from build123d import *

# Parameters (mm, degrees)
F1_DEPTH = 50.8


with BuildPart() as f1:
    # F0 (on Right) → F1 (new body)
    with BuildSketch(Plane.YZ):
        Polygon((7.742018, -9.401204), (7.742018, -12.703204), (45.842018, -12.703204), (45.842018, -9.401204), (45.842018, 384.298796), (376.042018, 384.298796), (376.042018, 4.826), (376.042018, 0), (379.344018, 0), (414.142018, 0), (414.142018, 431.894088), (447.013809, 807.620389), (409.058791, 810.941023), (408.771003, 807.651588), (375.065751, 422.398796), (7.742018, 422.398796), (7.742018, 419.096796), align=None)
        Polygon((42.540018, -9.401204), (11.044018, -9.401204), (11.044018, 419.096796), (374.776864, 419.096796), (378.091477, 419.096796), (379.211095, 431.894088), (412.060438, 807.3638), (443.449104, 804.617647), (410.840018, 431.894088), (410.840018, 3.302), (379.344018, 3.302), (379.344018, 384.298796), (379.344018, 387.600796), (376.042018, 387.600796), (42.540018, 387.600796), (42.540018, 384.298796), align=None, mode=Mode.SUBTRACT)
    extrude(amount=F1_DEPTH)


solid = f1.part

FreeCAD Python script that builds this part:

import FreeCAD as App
import Part
import Sketcher

V = App.Vector
Q = App.Units.Quantity

doc = App.newDocument("Part")
params = doc.addObject("Spreadsheet::Sheet", "Params")
for row, (alias, value) in enumerate([
    ("sketch1_width", "13 in"),
    ("sketch1_width2", "1.5 in"),
    ("sketch1_length", "1.5 in"),
    ("sketch1_width3", "1.24 in"),
    ("sketch1_width4", "13.26 in"),
    ("pad1_length", "2 in"),
], start=1):
    params.set(f"A{row}", alias)
    params.set(f"B{row}", "=" + value)
    params.setAlias(f"B{row}", alias)

body = doc.addObject("PartDesign::Body", "Body")

# Sketch on YZ plane
sketch1 = body.newObject("Sketcher::SketchObject", "Sketch")
sketch1.AttachmentSupport = (doc.getObject("YZ_Plane"), [""])
sketch1.MapMode = "FlatFace"
sketch1.addGeometry([
    Part.LineSegment(V(7.742018, -12.703204, 0), V(45.842018, -12.703204, 0)),  # 0
    Part.LineSegment(V(45.842018, -12.703204, 0), V(45.842018, 384.298796, 0)),  # 1
    Part.LineSegment(V(45.842018, 384.298796, 0), V(376.042018, 384.298796, 0)),  # 2
    Part.LineSegment(V(376.042018, 384.298796, 0), V(376.042018, 0, 0)),  # 3
    Part.LineSegment(V(376.042018, 0, 0), V(414.142018, 0, 0)),  # 4
    Part.LineSegment(V(414.142018, 0, 0), V(414.142018, 431.894088, 0)),  # 5
    Part.LineSegment(V(414.142018, 431.894088, 0), V(447.013809, 807.620389, 0)),  # 6
    Part.LineSegment(V(447.013809, 807.620389, 0), V(409.058791, 810.941023, 0)),  # 7
    Part.LineSegment(V(409.058791, 810.941023, 0), V(408.771003, 807.651588, 0)),  # 8
    Part.LineSegment(V(408.771003, 807.651588, 0), V(375.065751, 422.398796, 0)),  # 9
    Part.LineSegment(V(375.065751, 422.398796, 0), V(7.742018, 422.398796, 0)),  # 10
    Part.LineSegment(V(7.742018, 422.398796, 0), V(7.742018, -12.703204, 0)),  # 11
    Part.LineSegment(V(42.540018, 387.600796, 0), V(42.540018, -9.401204, 0)),  # 12
    Part.LineSegment(V(42.540018, -9.401204, 0), V(11.044018, -9.401204, 0)),  # 13
    Part.LineSegment(V(11.044018, -9.401204, 0), V(11.044018, 419.096796, 0)),  # 14
    Part.LineSegment(V(11.044018, 419.096796, 0), V(378.091477, 419.096796, 0)),  # 15
    Part.LineSegment(V(378.091477, 419.096796, 0), V(379.211095, 431.894088, 0)),  # 16
    Part.LineSegment(V(379.211095, 431.894088, 0), V(412.060438, 807.3638, 0)),  # 17
    Part.LineSegment(V(412.060438, 807.3638, 0), V(443.449104, 804.617647, 0)),  # 18
    Part.LineSegment(V(443.449104, 804.617647, 0), V(410.840018, 431.894088, 0)),  # 19
    Part.LineSegment(V(410.840018, 431.894088, 0), V(410.840018, 3.302, 0)),  # 20
    Part.LineSegment(V(410.840018, 3.302, 0), V(379.344018, 3.302, 0)),  # 21
    Part.LineSegment(V(379.344018, 3.302, 0), V(379.344018, 387.600796, 0)),  # 22
    Part.LineSegment(V(379.344018, 387.600796, 0), V(42.540018, 387.600796, 0)),  # 23
], False)
sketch1.addConstraint([
    Sketcher.Constraint("Coincident", 0, 2, 1, 1),
    Sketcher.Constraint("Coincident", 1, 2, 2, 1),
    Sketcher.Constraint("Coincident", 2, 2, 3, 1),
    Sketcher.Constraint("Coincident", 3, 2, 4, 1),
    Sketcher.Constraint("Coincident", 4, 2, 5, 1),
    Sketcher.Constraint("Coincident", 5, 2, 6, 1),
    Sketcher.Constraint("Coincident", 6, 2, 7, 1),
    Sketcher.Constraint("Coincident", 7, 2, 8, 1),
    Sketcher.Constraint("Coincident", 8, 2, 9, 1),
    Sketcher.Constraint("Coincident", 9, 2, 10, 1),
    Sketcher.Constraint("Coincident", 10, 2, 11, 1),
    Sketcher.Constraint("Coincident", 11, 2, 0, 1),
    Sketcher.Constraint("Coincident", 12, 2, 13, 1),
    Sketcher.Constraint("Coincident", 13, 2, 14, 1),
    Sketcher.Constraint("Coincident", 14, 2, 15, 1),
    Sketcher.Constraint("Coincident", 15, 2, 16, 1),
    Sketcher.Constraint("Coincident", 16, 2, 17, 1),
    Sketcher.Constraint("Coincident", 17, 2, 18, 1),
    Sketcher.Constraint("Coincident", 18, 2, 19, 1),
    Sketcher.Constraint("Coincident", 19, 2, 20, 1),
    Sketcher.Constraint("Coincident", 20, 2, 21, 1),
    Sketcher.Constraint("Coincident", 21, 2, 22, 1),
    Sketcher.Constraint("Coincident", 22, 2, 23, 1),
    Sketcher.Constraint("Coincident", 23, 2, 12, 1),
    Sketcher.Constraint("Horizontal", 0),
    Sketcher.Constraint("Vertical", 1),
    Sketcher.Constraint("Horizontal", 2),
    Sketcher.Constraint("Vertical", 3),
    Sketcher.Constraint("Horizontal", 4),
    Sketcher.Constraint("Vertical", 5),
    Sketcher.Constraint("Horizontal", 10),
    Sketcher.Constraint("Vertical", 11),
    Sketcher.Constraint("Vertical", 12),
    Sketcher.Constraint("Horizontal", 13),
    Sketcher.Constraint("Vertical", 14),
    Sketcher.Constraint("Horizontal", 15),
    Sketcher.Constraint("Vertical", 20),
    Sketcher.Constraint("Horizontal", 21),
    Sketcher.Constraint("Vertical", 22),
    Sketcher.Constraint("Horizontal", 23),
    Sketcher.Constraint("PointOnObject", 3, 2, -1),
    Sketcher.Constraint("Perpendicular", 6, 7),
    Sketcher.Constraint("Perpendicular", 7, 8),
    Sketcher.Constraint("Parallel", 8, 9),
    Sketcher.Constraint("Parallel", 9, 16),
    Sketcher.Constraint("Parallel", 16, 17),
    Sketcher.Constraint("Perpendicular", 17, 18),
    Sketcher.Constraint("Perpendicular", 18, 19),
    Sketcher.Constraint("Horizontal", 5, 2, 16, 2),
    Sketcher.Constraint("Horizontal", 16, 2, 19, 2),
    Sketcher.Constraint("Equal", 0, 4),
    Sketcher.Constraint("Equal", 13, 21),
    Sketcher.Constraint("Equal", 1, 12),
    Sketcher.Constraint("Equal", 3, 22),
    Sketcher.Constraint("DistanceX", 2, 1, 2, 2, Q("13 in")),
    Sketcher.Constraint("DistanceX", 0, 1, 0, 2, Q("1.5 in")),
    Sketcher.Constraint("Angle", 6, Q("85 deg")),
    Sketcher.Constraint("Distance", 7, Q("1.5 in")),
    Sketcher.Constraint("DistanceX", 13, 2, 13, 1, Q("1.24 in")),
    Sketcher.Constraint("DistanceX", 23, 2, 23, 1, Q("13.26 in")),
    Sketcher.Constraint("DistanceY", 1, 1, 1, 2, Q("15.63 in")),
    Sketcher.Constraint("DistanceY", 11, 2, 11, 1, Q("17.13 in")),
    Sketcher.Constraint("DistanceY", 14, 1, 14, 2, Q("16.87 in")),
    Sketcher.Constraint("DistanceY", 12, 2, 1, 2, Q("15.5 in")),
    Sketcher.Constraint("Distance", 8, Q("0.13 in")),
    Sketcher.Constraint("DistanceX", 12, 2, 0, 2, Q("0.13 in")),
    Sketcher.Constraint("DistanceX", 15, 1, 15, 2, 367.047459),
    Sketcher.Constraint("DistanceY", 5, 1, 5, 2, 431.894088),
    Sketcher.Constraint("DistanceY", -1, 1, 17, 2, 807.3638),
    Sketcher.Constraint("DistanceY", 5, 2, 6, 2, 375.726301),
    Sketcher.Constraint("DistanceX", 10, 2, 10, 1, 367.323733),
    Sketcher.Constraint("DistanceX", -1, 1, 0, 2, 45.842018),
])
sketch1.setExpression("Constraints[54]", "Params.sketch1_width")
sketch1.setExpression("Constraints[55]", "Params.sketch1_width2")
sketch1.setExpression("Constraints[57]", "Params.sketch1_length")
sketch1.setExpression("Constraints[58]", "Params.sketch1_width3")
sketch1.setExpression("Constraints[59]", "Params.sketch1_width4")
pad1 = body.newObject("PartDesign::Pad", "Pad")
pad1.Profile = sketch1
pad1.setExpression("Length", "Params.pad1_length")

doc.recompute()
